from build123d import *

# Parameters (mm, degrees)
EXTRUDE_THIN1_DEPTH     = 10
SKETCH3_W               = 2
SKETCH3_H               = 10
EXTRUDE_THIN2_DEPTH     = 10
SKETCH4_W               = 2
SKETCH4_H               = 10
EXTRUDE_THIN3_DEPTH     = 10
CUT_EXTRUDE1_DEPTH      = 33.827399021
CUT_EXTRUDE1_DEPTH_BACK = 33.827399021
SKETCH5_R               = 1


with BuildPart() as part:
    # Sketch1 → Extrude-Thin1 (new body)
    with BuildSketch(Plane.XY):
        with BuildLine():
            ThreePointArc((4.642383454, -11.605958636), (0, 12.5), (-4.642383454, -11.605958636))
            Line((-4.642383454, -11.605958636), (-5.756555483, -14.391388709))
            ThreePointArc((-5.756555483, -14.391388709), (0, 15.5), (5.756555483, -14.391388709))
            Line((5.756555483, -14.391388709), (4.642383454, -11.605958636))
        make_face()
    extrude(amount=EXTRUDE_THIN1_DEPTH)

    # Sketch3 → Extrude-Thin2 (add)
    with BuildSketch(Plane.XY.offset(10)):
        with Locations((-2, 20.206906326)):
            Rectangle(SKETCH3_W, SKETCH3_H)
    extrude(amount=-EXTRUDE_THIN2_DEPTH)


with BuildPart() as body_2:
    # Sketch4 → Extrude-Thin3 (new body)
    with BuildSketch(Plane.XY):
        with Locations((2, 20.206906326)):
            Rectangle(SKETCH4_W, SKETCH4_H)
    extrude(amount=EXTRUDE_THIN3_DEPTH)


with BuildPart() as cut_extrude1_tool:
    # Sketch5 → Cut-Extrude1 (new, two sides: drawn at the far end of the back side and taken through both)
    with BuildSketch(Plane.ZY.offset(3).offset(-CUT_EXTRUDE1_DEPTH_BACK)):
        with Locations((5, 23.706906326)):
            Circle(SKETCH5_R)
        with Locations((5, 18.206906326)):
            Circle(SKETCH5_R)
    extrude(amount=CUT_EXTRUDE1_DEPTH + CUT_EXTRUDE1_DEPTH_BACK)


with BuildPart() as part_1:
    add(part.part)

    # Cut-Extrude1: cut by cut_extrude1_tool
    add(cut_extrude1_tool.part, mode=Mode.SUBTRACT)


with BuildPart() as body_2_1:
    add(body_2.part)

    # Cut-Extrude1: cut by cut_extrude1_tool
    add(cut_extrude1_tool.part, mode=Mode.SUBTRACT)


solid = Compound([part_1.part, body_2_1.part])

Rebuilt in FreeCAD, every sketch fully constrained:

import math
import FreeCAD as App
import Part
import Sketcher
Q = App.Units.Quantity


def add_polygon(sketch, points):
    """Adds a closed chain of lines whose ends are joined by coincident constraints."""
    first, n = sketch.GeometryCount, len(points)
    for a, b in zip(points, points[1:] + points[:1]):
        sketch.addGeometry(Part.LineSegment(App.Vector(*a, 0), App.Vector(*b, 0)), False)
    for i in range(n):
        sketch.addConstraint(Sketcher.Constraint("Coincident", first + i, 2, first + (i + 1) % n, 1))

doc = App.newDocument("Part")
params = doc.addObject("Spreadsheet::Sheet", "Params")
for row, (alias, value) in enumerate([
    ("sketch1_radius", "12.5 mm"),
    ("sketch1_radius2", "15.5 mm"),
    ("pad1_length", "10 mm"),
    ("sketch2_width", "2 mm"),
    ("sketch2_height", "10 mm"),
    ("pad2_length", "10 mm"),
    ("sketch3_width", "2 mm"),
    ("sketch3_height", "10 mm"),
    ("pad3_length", "10 mm"),
    ("sketch4_diameter", "2 mm"),
    ("pad4_length", "33.827399 mm"),
    ("pad4_length2", "33.827399 mm"),
], start=1):
    params.set(f"A{row}", alias)
    params.set(f"B{row}", "=" + value)
    params.setAlias(f"B{row}", alias)

body = doc.addObject("PartDesign::Body", "Body")

# Sketch on XY plane
sketch1 = body.newObject("Sketcher::SketchObject", "Sketch")
sketch1.AttachmentSupport = (doc.getObject("XY_Plane"), [""])
sketch1.MapMode = "FlatFace"
sketch1.addGeometry(Part.ArcOfCircle(Part.Circle(App.Vector(0, 0, 0), App.Vector(0, 0, 1), 12.5), math.radians(-68), math.radians(248)), False)
sketch1.addGeometry(Part.LineSegment(App.Vector(4.6, -11.6, 0), App.Vector(5.8, -14.4, 0)), False)
sketch1.addGeometry(Part.ArcOfCircle(Part.Circle(App.Vector(0, 0, 0), App.Vector(0, 0, 1), 15.5), math.radians(-68), math.radians(248)), False)
sketch1.addGeometry(Part.LineSegment(App.Vector(-5.8, -14.4, 0), App.Vector(-4.6, -11.6, 0)), False)
sketch1.addConstraint(Sketcher.Constraint("Coincident", 0, 1, 1, 1))
sketch1.addConstraint(Sketcher.Constraint("Coincident", 1, 2, 2, 1))
sketch1.addConstraint(Sketcher.Constraint("Coincident", 2, 2, 3, 1))
sketch1.addConstraint(Sketcher.Constraint("Coincident", 3, 2, 0, 2))
sketch1.addConstraint(Sketcher.Constraint("Coincident", 0, 3, -1, 1))
sketch1.addConstraint(Sketcher.Constraint("Coincident", 2, 3, -1, 1))
sketch1.addConstraint(Sketcher.Constraint("Horizontal", 1, 2, 2, 2))
sketch1.addConstraint(Sketcher.Constraint("Horizontal", 0, 1, 3, 2))
sketch1.addConstraint(Sketcher.Constraint("Radius", 0, Q("12.5 mm")))
sketch1.addConstraint(Sketcher.Constraint("Radius", 2, Q("15.5 mm")))
sketch1.addConstraint(Sketcher.Constraint("DistanceY", 0, 1, -1, 1, Q("11.605959 mm")))
sketch1.addConstraint(Sketcher.Constraint("DistanceY", 1, 2, -1, 1, Q("14.391389 mm")))
sketch1.setExpression("Constraints[8]", "Params.sketch1_radius")
sketch1.setExpression("Constraints[9]", "Params.sketch1_radius2")
pad1 = body.newObject("PartDesign::Pad", "Pad")
pad1.Profile = sketch1
pad1.setExpression("Length", "Params.pad1_length")

# Sketch on XY plane
sketch2 = body.newObject("Sketcher::SketchObject", "Sketch001")
sketch2.AttachmentSupport = (doc.getObject("XY_Plane"), [""])
sketch2.MapMode = "FlatFace"
sketch2.AttachmentOffset = App.Placement(App.Vector(0, 0, 10), App.Rotation())
add_polygon(sketch2, [(-3, 25.2), (-3, 15.2), (-1, 15.2), (-1, 25.2)])  # lines 0-3
sketch2.addConstraint(Sketcher.Constraint("Vertical", 0))
sketch2.addConstraint(Sketcher.Constraint("Horizontal", 1))
sketch2.addConstraint(Sketcher.Constraint("Vertical", 2))
sketch2.addConstraint(Sketcher.Constraint("Horizontal", 3))
sketch2.addConstraint(Sketcher.Constraint("DistanceX", 1, 1, 1, 2, Q("2 mm")))
sketch2.addConstraint(Sketcher.Constraint("DistanceY", 0, 2, 0, 1, Q("10 mm")))
sketch2.addConstraint(Sketcher.Constraint("DistanceX", 0, 2, -1, 1, Q("3 mm")))
sketch2.addConstraint(Sketcher.Constraint("DistanceY", -1, 1, 0, 2, Q("15.206906 mm")))
sketch2.setExpression("Constraints[8]", "Params.sketch2_width")
sketch2.setExpression("Constraints[9]", "Params.sketch2_height")
pad2 = body.newObject("PartDesign::Pad", "Pad001")
pad2.Profile = sketch2
pad2.setExpression("Length", "Params.pad2_length")
pad2.Reversed = True
body2 = doc.addObject("PartDesign::Body", "Body001")

# Sketch on XY plane
sketch3 = body2.newObject("Sketcher::SketchObject", "Sketch002")
sketch3.AttachmentSupport = (doc.getObject("XY_Plane001"), [""])
sketch3.MapMode = "FlatFace"
add_polygon(sketch3, [(1, 25.2), (1, 15.2), (3, 15.2), (3, 25.2)])  # lines 0-3
sketch3.addConstraint(Sketcher.Constraint("Vertical", 0))
sketch3.addConstraint(Sketcher.Constraint("Horizontal", 1))
sketch3.addConstraint(Sketcher.Constraint("Vertical", 2))
sketch3.addConstraint(Sketcher.Constraint("Horizontal", 3))
sketch3.addConstraint(Sketcher.Constraint("DistanceX", 1, 1, 1, 2, Q("2 mm")))
sketch3.addConstraint(Sketcher.Constraint("DistanceY", 0, 2, 0, 1, Q("10 mm")))
sketch3.addConstraint(Sketcher.Constraint("DistanceX", -1, 1, 0, 2, Q("1 mm")))
sketch3.addConstraint(Sketcher.Constraint("DistanceY", -1, 1, 0, 2, Q("15.206906 mm")))
sketch3.setExpression("Constraints[8]", "Params.sketch3_width")
sketch3.setExpression("Constraints[9]", "Params.sketch3_height")
pad3 = body2.newObject("PartDesign::Pad", "Pad002")
pad3.Profile = sketch3
pad3.setExpression("Length", "Params.pad3_length")
body3 = doc.addObject("PartDesign::Body", "Body002")
body3.AllowCompound = True

# Sketch on YZ plane
sketch4 = body3.newObject("Sketcher::SketchObject", "Sketch003")
sketch4.AttachmentSupport = (doc.getObject("YZ_Plane002"), [""])
sketch4.MapMode = "FlatFace"
sketch4.AttachmentOffset = App.Placement(App.Vector(0, 0, -3), App.Rotation())
sketch4.addGeometry(Part.Circle(App.Vector(23.7, 5, 0), App.Vector(0, 0, 1), 1), False)
sketch4.addGeometry(Part.Circle(App.Vector(18.2, 5, 0), App.Vector(0, 0, 1), 1), False)
sketch4.addConstraint(Sketcher.Constraint("Equal", 0, 1))
sketch4.addConstraint(Sketcher.Constraint("Horizontal", 0, 3, 1, 3))
sketch4.addConstraint(Sketcher.Constraint("Diameter", 0, Q("2 mm")))
sketch4.addConstraint(Sketcher.Constraint("DistanceY", -1, 1, 0, 3, Q("5 mm")))
sketch4.addConstraint(Sketcher.Constraint("DistanceX", 1, 3, 0, 3, Q("5.5 mm")))
sketch4.addConstraint(Sketcher.Constraint("DistanceX", -1, 1, 0, 3, Q("23.706906 mm")))
sketch4.setExpression("Constraints[2]", "Params.sketch4_diameter")
pad4 = body3.newObject("PartDesign::Pad", "Pad003")
pad4.Profile = sketch4
pad4.Type = "TwoLengths"
pad4.setExpression("Length", "Params.pad4_length")
pad4.setExpression("Length2", "Params.pad4_length2")
pad4.Reversed = True
doc.recompute()

body4 = doc.addObject("PartDesign::Body", "Body003")
body4.BaseFeature = body3
boolean = body.newObject("PartDesign::Boolean", "Boolean")
boolean.Type = "Cut"
boolean.addObjects([body4])
doc.recompute()

boolean2 = body2.newObject("PartDesign::Boolean", "Boolean001")
boolean2.Type = "Cut"
boolean2.addObjects([body3])

doc.recompute()
